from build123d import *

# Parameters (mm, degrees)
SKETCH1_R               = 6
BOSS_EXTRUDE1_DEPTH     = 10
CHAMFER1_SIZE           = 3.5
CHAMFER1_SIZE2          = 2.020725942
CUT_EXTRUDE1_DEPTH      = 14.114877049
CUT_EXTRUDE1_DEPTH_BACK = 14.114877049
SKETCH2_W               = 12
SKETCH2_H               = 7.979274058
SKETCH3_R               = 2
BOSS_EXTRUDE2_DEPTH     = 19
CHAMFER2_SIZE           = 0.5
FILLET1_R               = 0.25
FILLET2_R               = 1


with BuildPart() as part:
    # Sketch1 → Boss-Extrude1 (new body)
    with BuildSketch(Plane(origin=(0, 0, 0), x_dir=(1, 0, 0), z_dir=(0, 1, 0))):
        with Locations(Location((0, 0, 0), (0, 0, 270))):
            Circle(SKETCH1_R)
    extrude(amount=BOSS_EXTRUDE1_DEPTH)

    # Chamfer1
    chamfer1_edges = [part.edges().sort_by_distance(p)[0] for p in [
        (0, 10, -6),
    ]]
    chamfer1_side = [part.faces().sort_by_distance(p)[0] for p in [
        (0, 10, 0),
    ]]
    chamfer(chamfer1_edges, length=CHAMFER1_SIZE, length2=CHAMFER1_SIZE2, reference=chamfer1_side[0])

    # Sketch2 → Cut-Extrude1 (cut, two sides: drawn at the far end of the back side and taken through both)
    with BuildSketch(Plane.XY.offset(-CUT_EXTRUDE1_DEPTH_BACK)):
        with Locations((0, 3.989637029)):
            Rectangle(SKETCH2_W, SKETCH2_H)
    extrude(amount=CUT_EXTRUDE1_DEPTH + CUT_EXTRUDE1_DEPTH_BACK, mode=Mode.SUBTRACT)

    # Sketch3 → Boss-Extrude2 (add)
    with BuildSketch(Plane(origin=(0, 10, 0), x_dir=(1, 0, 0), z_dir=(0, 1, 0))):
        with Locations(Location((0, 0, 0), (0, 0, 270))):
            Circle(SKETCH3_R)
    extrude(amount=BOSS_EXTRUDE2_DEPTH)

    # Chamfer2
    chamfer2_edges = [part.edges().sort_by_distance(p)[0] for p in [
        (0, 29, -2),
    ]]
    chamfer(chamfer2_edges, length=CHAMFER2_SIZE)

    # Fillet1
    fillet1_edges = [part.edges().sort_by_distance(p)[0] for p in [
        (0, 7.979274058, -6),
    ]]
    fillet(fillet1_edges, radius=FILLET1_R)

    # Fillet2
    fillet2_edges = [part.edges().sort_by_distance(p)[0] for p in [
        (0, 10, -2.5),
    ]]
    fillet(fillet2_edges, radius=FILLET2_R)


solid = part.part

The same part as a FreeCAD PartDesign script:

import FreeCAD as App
import Part
import Sketcher

V = App.Vector
Q = App.Units.Quantity


def edges_at(feature, points):
    """Names of the edges that pass closest to the given points."""
    edges = feature.Shape.Edges
    near = lambda p: min(range(len(edges)), key=lambda i: edges[i].distToShape(Part.Vertex(*p))[0])
    return sorted({f"Edge{near(p) + 1}" for p in points})

doc = App.newDocument("Part")
params = doc.addObject("Spreadsheet::Sheet", "Params")
for row, (alias, value) in enumerate([
    ("sketch1_diameter", "12 mm"),
    ("pad1_length", "10 mm"),
    ("chamfer_size", "3.5 mm"),
    ("chamfer_size2", "2.020726 mm"),
    ("sketch2_width", "12 mm"),
    ("sketch3_diameter", "4 mm"),
    ("pad2_length", "19 mm"),
    ("chamfer2_size", "0.5 mm"),
    ("fillet_radius", "0.25 mm"),
    ("fillet2_radius", "1 mm"),
], start=1):
    params.set(f"A{row}", alias)
    params.set(f"B{row}", "=" + value)
    params.setAlias(f"B{row}", alias)

body = doc.addObject("PartDesign::Body", "Body")

# Sketch on XZ plane
sketch1 = body.newObject("Sketcher::SketchObject", "Sketch")
sketch1.AttachmentSupport = (doc.getObject("XZ_Plane"), [""])
sketch1.MapMode = "FlatFace"
sketch1.addGeometry(Part.Circle(V(0, 0, 0), V(0, 0, 1), 6), False)
sketch1.addConstraint([
    Sketcher.Constraint("Coincident", 0, 3, -1, 1),
    Sketcher.Constraint("Diameter", 0, Q("12 mm")),
])
sketch1.setExpression("Constraints[1]", "Params.sketch1_diameter")
pad1 = body.newObject("PartDesign::Pad", "Pad")
pad1.Profile = sketch1
pad1.setExpression("Length", "Params.pad1_length")
pad1.Reversed = True
doc.recompute()

chamfer = body.newObject("PartDesign::Chamfer", "Chamfer")
chamfer.Base = (pad1, edges_at(pad1, [(0, 10, -6)]))
chamfer.ChamferType = "Two distances"
chamfer.setExpression("Size", "Params.chamfer_size")
chamfer.setExpression("Size2", "Params.chamfer_size2")
chamfer.FlipDirection = True

# Sketch on XY plane
sketch2 = body.newObject("Sketcher::SketchObject", "Sketch001")
sketch2.AttachmentSupport = (doc.getObject("XY_Plane"), [""])
sketch2.MapMode = "FlatFace"
sketch2.addGeometry([
    Part.LineSegment(V(-6, 8, 0), V(-6, 0, 0)),
    Part.LineSegment(V(-6, 0, 0), V(6, 0, 0)),
    Part.LineSegment(V(6, 0, 0), V(6, 8, 0)),
    Part.LineSegment(V(6, 8, 0), V(-6, 8, 0)),
], False)
sketch2.addConstraint([
    Sketcher.Constraint("Coincident", 0, 2, 1, 1),
    Sketcher.Constraint("Coincident", 1, 2, 2, 1),
    Sketcher.Constraint("Coincident", 2, 2, 3, 1),
    Sketcher.Constraint("Coincident", 3, 2, 0, 1),
    Sketcher.Constraint("Vertical", 0),
    Sketcher.Constraint("Horizontal", 1),
    Sketcher.Constraint("Vertical", 2),
    Sketcher.Constraint("Horizontal", 3),
    Sketcher.Constraint("Symmetric", 0, 2, 1, 2, -1, 1),
    Sketcher.Constraint("DistanceX", 1, 1, 1, 2, Q("12 mm")),
    Sketcher.Constraint("DistanceY", 0, 2, 0, 1, Q("7.979274 mm")),
])
sketch2.setExpression("Constraints[9]", "Params.sketch2_width")
pocket1 = body.newObject("PartDesign::Pocket", "Pocket")
pocket1.Profile = sketch2
pocket1.Type = "ThroughAll"
pocket1.Midplane = True

# Sketch on XZ plane
sketch3 = body.newObject("Sketcher::SketchObject", "Sketch002")
sketch3.AttachmentSupport = (doc.getObject("XZ_Plane"), [""])
sketch3.MapMode = "FlatFace"
sketch3.AttachmentOffset = App.Placement(V(0, 0, -10), App.Rotation())
sketch3.addGeometry(Part.Circle(V(0, 0, 0), V(0, 0, 1), 2), False)
sketch3.addConstraint([
    Sketcher.Constraint("Coincident", 0, 3, -1, 1),
    Sketcher.Constraint("Diameter", 0, Q("4 mm")),
])
sketch3.setExpression("Constraints[1]", "Params.sketch3_diameter")
pad2 = body.newObject("PartDesign::Pad", "Pad001")
pad2.Profile = sketch3
pad2.setExpression("Length", "Params.pad2_length")
pad2.Reversed = True
doc.recompute()

chamfer2 = body.newObject("PartDesign::Chamfer", "Chamfer001")
chamfer2.Base = (pad2, edges_at(pad2, [(0, 29, -2)]))
chamfer2.setExpression("Size", "Params.chamfer2_size")
doc.recompute()

fillet = body.newObject("PartDesign::Fillet", "Fillet")
fillet.Base = (chamfer2, edges_at(chamfer2, [(0, 7.979, -6)]))
fillet.setExpression("Radius", "Params.fillet_radius")
doc.recompute()

fillet2 = body.newObject("PartDesign::Fillet", "Fillet001")
fillet2.Base = (fillet, edges_at(fillet, [(0, 10, -2.5)]))
fillet2.setExpression("Radius", "Params.fillet2_radius")

doc.recompute()
